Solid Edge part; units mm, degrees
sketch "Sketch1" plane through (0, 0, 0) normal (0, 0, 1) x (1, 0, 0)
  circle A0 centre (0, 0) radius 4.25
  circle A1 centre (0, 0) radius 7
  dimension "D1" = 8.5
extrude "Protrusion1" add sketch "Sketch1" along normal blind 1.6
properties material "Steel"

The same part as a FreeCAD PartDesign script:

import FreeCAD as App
import Part
import Sketcher
from FreeCAD import Vector

doc = App.newDocument("Part")
params = doc.addObject("Spreadsheet::Sheet", "Params")
for row, (alias, value) in enumerate([
    ("sketch1_diameter", "14 mm"),
    ("sketch1_diameter2", "8.5 mm"),
    ("pad1_length", "1.6 mm"),
], start=1):
    params.set(f"A{row}", alias)
    params.set(f"B{row}", "=" + value)
    params.setAlias(f"B{row}", alias)

body = doc.addObject("PartDesign::Body", "Body")

sketch1 = doc.addObject("Sketcher::SketchObject", "Sketch")
body.addObject(sketch1)
sketch1.AttachmentSupport = (doc.XY_Plane, [""])
sketch1.MapMode = "FlatFace"
sketch1.addGeometry([
    Part.Circle(Vector(0, 0, 0), Vector(0, 0, 1), 7),
    Part.Circle(Vector(0, 0, 0), Vector(0, 0, 1), 4.2),
], False)
sketch1.addConstraint([
    Sketcher.Constraint("Coincident", 0, 3, -1, 1),
    Sketcher.Constraint("Coincident", 1, 3, -1, 1),
    Sketcher.Constraint("Diameter", 0, 14.0),
    Sketcher.Constraint("Diameter", 1, 8.5),
])
sketch1.setExpression("Constraints[2]", "Params.sketch1_diameter")
sketch1.setExpression("Constraints[3]", "Params.sketch1_diameter2")
pad1 = doc.addObject("PartDesign::Pad", "Pad")
body.addObject(pad1)
pad1.Profile = sketch1
pad1.setExpression("Length", "Params.pad1_length")

doc.recompute()
